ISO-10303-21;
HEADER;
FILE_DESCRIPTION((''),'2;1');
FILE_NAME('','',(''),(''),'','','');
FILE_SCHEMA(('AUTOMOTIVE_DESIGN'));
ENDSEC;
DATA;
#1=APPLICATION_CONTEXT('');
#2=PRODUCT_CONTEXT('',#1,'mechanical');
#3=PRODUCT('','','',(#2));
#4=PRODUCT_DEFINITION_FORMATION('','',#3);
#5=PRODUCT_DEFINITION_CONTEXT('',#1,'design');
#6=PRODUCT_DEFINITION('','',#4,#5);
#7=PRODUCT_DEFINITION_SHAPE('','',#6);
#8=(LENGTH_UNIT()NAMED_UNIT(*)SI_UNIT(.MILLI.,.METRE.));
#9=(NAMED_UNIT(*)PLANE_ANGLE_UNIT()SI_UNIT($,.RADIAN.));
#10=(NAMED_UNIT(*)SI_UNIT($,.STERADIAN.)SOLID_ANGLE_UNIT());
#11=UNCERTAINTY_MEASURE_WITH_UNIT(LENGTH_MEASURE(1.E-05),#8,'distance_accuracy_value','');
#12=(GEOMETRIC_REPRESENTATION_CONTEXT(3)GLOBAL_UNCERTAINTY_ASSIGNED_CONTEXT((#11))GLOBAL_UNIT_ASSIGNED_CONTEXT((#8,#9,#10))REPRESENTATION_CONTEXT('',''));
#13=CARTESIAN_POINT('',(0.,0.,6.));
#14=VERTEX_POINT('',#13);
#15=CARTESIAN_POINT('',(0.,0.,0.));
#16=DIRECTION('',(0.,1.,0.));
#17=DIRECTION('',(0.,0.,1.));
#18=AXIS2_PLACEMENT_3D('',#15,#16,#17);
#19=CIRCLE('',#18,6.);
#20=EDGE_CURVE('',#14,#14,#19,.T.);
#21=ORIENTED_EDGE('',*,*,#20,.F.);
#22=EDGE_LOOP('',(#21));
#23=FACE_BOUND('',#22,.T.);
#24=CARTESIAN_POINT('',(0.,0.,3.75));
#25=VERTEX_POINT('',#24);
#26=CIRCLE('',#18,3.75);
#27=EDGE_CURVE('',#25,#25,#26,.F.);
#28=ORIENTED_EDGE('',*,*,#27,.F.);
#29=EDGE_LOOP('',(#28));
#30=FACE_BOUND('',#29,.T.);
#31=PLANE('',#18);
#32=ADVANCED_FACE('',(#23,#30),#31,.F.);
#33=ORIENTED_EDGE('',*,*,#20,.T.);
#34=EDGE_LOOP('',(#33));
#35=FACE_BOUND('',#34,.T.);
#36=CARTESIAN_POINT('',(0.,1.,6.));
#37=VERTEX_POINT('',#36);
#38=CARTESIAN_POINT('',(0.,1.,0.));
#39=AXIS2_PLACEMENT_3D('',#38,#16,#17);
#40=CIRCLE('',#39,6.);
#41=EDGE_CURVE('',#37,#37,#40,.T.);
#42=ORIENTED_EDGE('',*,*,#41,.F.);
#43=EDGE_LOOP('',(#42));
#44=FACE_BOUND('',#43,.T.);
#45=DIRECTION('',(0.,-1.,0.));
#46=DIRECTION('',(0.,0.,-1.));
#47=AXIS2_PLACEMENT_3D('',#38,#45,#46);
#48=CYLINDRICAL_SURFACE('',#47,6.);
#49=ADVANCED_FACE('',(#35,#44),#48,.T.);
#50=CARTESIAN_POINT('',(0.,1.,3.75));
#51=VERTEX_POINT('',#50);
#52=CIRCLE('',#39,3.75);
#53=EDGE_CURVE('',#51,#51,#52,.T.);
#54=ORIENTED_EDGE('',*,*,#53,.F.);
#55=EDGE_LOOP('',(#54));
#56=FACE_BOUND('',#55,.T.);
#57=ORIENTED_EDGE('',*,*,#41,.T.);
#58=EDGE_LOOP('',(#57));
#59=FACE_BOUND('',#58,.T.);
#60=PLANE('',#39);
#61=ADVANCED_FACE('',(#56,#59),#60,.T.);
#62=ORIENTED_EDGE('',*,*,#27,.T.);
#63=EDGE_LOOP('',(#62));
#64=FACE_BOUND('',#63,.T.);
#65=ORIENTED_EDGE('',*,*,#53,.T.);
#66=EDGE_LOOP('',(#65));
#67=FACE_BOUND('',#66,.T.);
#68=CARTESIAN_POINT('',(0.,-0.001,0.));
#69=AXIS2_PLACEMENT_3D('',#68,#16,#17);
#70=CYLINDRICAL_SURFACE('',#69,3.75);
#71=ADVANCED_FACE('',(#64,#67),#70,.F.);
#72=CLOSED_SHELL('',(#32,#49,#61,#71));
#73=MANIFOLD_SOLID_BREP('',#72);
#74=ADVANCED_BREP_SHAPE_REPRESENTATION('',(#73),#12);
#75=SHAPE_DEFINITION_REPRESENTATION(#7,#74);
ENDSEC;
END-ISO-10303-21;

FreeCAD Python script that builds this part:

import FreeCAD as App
import Part
import Sketcher

V = App.Vector
Q = App.Units.Quantity

doc = App.newDocument("Part")
body = doc.addObject("PartDesign::Body", "Body")

# Sketch on XZ plane
sketch1 = body.newObject("Sketcher::SketchObject", "Sketch")
sketch1.AttachmentSupport = (doc.getObject("XZ_Plane"), [""])
sketch1.MapMode = "FlatFace"
sketch1.addGeometry(Part.Circle(V(0, 0, 0), V(0, 0, 1), 6), False)
sketch1.addConstraint([
    Sketcher.Constraint("Coincident", 0, 3, -1, 1),
    Sketcher.Constraint("Diameter", 0, Q("12 mm")),
])
pad1 = body.newObject("PartDesign::Pad", "Pad")
pad1.Profile = sketch1
pad1.Length = 1
pad1.Reversed = True

# Sketch on XZ plane
sketch2 = body.newObject("Sketcher::SketchObject", "Sketch001")
sketch2.AttachmentSupport = (doc.getObject("XZ_Plane"), [""])
sketch2.MapMode = "FlatFace"
sketch2.AttachmentOffset = App.Placement(V(0, 0, -1), App.Rotation())
sketch2.addGeometry(Part.Circle(V(0, 0, 0), V(0, 0, 1), 3.75), False)
sketch2.addConstraint([
    Sketcher.Constraint("Coincident", 0, 3, -1, 1),
    Sketcher.Constraint("Diameter", 0, Q("7.5 mm")),
])
pocket1 = body.newObject("PartDesign::Pocket", "Pocket")
pocket1.Profile = sketch2
pocket1.Type = "UpToFirst"
pocket1.Reversed = True

doc.recompute()
